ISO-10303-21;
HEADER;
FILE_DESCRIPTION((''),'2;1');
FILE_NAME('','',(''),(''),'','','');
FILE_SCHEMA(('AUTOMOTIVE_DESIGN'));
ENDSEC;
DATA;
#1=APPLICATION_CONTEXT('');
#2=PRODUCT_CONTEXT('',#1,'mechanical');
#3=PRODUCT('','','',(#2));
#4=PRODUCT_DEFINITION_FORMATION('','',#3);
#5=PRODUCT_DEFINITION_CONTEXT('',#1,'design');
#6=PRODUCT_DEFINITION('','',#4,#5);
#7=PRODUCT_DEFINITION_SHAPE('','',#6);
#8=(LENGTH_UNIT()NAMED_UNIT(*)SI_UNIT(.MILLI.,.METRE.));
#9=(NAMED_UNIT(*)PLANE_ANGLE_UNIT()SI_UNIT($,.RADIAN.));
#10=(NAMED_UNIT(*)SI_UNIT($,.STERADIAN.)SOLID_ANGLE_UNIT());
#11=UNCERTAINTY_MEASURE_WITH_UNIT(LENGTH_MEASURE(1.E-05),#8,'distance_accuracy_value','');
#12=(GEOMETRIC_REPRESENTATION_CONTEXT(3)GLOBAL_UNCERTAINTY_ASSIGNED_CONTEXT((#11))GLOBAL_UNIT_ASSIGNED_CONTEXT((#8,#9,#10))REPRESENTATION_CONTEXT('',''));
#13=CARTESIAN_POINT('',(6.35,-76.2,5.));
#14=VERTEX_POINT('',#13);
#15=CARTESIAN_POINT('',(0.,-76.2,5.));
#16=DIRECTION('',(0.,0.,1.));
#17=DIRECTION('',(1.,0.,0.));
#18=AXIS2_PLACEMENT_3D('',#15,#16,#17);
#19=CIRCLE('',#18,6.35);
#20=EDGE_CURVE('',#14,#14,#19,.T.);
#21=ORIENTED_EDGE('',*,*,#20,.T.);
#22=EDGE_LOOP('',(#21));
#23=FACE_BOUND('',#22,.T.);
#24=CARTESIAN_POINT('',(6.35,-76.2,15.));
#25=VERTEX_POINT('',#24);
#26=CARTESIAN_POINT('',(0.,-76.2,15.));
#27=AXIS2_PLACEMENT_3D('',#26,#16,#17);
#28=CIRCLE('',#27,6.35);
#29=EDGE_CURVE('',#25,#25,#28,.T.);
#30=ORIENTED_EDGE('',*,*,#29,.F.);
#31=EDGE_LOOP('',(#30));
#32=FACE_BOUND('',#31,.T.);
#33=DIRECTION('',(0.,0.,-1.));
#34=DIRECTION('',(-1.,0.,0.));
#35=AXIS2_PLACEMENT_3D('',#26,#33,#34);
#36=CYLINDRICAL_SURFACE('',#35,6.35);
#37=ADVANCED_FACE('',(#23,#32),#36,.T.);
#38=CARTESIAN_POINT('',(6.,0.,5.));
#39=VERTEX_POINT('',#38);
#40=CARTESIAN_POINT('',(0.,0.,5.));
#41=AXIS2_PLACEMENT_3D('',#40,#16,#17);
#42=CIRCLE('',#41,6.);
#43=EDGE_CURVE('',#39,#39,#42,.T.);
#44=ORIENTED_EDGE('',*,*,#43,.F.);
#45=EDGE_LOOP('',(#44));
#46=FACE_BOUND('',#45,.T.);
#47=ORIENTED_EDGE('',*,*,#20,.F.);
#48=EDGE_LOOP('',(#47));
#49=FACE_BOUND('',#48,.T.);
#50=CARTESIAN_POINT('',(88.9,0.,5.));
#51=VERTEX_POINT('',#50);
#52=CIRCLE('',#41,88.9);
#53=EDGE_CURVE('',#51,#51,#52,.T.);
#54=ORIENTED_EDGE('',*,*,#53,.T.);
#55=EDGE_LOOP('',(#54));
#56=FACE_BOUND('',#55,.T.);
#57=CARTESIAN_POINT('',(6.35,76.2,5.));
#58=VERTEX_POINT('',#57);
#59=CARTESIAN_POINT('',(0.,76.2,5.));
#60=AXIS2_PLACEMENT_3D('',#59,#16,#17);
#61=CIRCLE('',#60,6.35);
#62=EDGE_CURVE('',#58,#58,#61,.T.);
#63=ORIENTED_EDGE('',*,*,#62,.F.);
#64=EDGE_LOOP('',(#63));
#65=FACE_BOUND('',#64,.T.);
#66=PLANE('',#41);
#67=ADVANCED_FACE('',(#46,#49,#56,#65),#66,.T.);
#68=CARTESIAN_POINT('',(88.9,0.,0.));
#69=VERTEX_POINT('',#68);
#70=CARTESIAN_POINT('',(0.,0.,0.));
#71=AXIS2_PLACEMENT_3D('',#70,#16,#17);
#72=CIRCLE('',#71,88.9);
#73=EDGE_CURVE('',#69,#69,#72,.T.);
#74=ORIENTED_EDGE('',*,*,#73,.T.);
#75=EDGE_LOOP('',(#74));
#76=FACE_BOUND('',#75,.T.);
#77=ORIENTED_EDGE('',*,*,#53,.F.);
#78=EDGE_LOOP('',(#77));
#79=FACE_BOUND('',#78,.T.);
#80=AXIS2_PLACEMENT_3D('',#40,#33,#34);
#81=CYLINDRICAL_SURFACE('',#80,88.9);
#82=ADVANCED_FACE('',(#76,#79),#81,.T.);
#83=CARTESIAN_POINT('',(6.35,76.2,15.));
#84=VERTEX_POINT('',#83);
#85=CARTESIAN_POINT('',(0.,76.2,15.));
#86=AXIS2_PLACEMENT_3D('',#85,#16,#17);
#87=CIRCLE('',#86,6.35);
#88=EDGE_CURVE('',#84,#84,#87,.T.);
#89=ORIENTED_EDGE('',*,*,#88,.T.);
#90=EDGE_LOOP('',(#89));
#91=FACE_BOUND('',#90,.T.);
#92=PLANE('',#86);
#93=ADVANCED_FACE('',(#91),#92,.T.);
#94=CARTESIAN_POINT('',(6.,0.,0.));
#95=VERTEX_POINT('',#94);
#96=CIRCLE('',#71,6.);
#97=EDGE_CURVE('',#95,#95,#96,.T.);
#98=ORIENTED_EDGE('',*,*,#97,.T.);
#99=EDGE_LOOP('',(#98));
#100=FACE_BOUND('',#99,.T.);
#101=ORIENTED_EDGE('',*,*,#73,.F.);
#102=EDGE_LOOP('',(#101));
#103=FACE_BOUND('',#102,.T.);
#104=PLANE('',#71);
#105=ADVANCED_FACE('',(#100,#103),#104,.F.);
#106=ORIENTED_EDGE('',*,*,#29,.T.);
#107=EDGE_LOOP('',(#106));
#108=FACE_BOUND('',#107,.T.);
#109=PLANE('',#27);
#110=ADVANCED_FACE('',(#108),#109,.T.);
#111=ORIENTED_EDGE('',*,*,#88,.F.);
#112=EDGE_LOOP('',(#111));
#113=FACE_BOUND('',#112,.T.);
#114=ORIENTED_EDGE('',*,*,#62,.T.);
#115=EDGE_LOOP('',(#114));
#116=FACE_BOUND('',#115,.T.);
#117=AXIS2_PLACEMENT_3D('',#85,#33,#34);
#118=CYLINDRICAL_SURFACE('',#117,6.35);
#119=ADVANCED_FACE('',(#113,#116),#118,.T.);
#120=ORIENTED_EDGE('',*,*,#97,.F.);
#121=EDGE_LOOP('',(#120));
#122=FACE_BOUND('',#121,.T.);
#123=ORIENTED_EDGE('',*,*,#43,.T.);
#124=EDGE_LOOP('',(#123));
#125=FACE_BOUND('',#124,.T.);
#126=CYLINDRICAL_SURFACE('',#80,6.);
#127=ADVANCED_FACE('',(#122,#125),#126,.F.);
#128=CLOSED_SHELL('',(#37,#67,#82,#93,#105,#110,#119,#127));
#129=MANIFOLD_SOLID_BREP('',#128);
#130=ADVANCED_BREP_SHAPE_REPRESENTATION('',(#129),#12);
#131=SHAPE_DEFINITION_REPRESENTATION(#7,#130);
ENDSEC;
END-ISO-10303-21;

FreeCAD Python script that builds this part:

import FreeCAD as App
import Part
import Sketcher

V = App.Vector
Q = App.Units.Quantity

doc = App.newDocument("Part")
body = doc.addObject("PartDesign::Body", "Body")

sketch1 = doc.addObject("Sketcher::SketchObject", "Sketch")
body.addObject(sketch1)
sketch1.AttachmentSupport = (doc.XY_Plane, [""])
sketch1.MapMode = "FlatFace"
sketch1.addGeometry(Part.Circle(V(0, 0, 0), V(0, 0, 1), 89), False)
sketch1.addGeometry(Part.Circle(V(0, -76, 0), V(0, 0, 1), 6), False)
sketch1.addGeometry(Part.Circle(V(0, 0, 0), V(0, 0, 1), 6), False)
sketch1.addGeometry(Part.Circle(V(0, 76, 0), V(0, 0, 1), 6), False)
sketch1.addConstraint(Sketcher.Constraint("Coincident", 0, 3, -1, 1))
sketch1.addConstraint(Sketcher.Constraint("Coincident", 2, 3, -1, 1))
sketch1.addConstraint(Sketcher.Constraint("Equal", 1, 3))
sketch1.addConstraint(Sketcher.Constraint("Symmetric", 1, 3, 3, 3, -1, 1))
sketch1.addConstraint(Sketcher.Constraint("PointOnObject", 1, 3, -2))
sketch1.addConstraint(Sketcher.Constraint("Diameter", 2, Q("12 mm")))
sketch1.addConstraint(Sketcher.Constraint("Diameter", 0, Q("177.8 mm")))
sketch1.addConstraint(Sketcher.Constraint("Diameter", 1, Q("12.7 mm")))
sketch1.addConstraint(Sketcher.Constraint("DistanceY", 1, 3, -1, 1, Q("76.2 mm")))
pad1 = doc.addObject("PartDesign::Pad", "Pad")
body.addObject(pad1)
pad1.Profile = sketch1
pad1.Length = 5

sketch2 = doc.addObject("Sketcher::SketchObject", "Sketch001")
body.addObject(sketch2)
sketch2.AttachmentSupport = (doc.XY_Plane, [""])
sketch2.MapMode = "FlatFace"
sketch2.addGeometry(Part.Circle(V(0, -76, 0), V(0, 0, 1), 6), False)
sketch2.addGeometry(Part.Circle(V(0, 76, 0), V(0, 0, 1), 6), False)
sketch2.addConstraint(Sketcher.Constraint("Equal", 0, 1))
sketch2.addConstraint(Sketcher.Constraint("Symmetric", 0, 3, 1, 3, -1, 1))
sketch2.addConstraint(Sketcher.Constraint("PointOnObject", 0, 3, -2))
sketch2.addConstraint(Sketcher.Constraint("Diameter", 0, Q("12.7 mm")))
sketch2.addConstraint(Sketcher.Constraint("DistanceY", 0, 3, -1, 1, Q("76.2 mm")))
pad2 = doc.addObject("PartDesign::Pad", "Pad001")
body.addObject(pad2)
pad2.Profile = sketch2
pad2.Length = 15

doc.recompute()
